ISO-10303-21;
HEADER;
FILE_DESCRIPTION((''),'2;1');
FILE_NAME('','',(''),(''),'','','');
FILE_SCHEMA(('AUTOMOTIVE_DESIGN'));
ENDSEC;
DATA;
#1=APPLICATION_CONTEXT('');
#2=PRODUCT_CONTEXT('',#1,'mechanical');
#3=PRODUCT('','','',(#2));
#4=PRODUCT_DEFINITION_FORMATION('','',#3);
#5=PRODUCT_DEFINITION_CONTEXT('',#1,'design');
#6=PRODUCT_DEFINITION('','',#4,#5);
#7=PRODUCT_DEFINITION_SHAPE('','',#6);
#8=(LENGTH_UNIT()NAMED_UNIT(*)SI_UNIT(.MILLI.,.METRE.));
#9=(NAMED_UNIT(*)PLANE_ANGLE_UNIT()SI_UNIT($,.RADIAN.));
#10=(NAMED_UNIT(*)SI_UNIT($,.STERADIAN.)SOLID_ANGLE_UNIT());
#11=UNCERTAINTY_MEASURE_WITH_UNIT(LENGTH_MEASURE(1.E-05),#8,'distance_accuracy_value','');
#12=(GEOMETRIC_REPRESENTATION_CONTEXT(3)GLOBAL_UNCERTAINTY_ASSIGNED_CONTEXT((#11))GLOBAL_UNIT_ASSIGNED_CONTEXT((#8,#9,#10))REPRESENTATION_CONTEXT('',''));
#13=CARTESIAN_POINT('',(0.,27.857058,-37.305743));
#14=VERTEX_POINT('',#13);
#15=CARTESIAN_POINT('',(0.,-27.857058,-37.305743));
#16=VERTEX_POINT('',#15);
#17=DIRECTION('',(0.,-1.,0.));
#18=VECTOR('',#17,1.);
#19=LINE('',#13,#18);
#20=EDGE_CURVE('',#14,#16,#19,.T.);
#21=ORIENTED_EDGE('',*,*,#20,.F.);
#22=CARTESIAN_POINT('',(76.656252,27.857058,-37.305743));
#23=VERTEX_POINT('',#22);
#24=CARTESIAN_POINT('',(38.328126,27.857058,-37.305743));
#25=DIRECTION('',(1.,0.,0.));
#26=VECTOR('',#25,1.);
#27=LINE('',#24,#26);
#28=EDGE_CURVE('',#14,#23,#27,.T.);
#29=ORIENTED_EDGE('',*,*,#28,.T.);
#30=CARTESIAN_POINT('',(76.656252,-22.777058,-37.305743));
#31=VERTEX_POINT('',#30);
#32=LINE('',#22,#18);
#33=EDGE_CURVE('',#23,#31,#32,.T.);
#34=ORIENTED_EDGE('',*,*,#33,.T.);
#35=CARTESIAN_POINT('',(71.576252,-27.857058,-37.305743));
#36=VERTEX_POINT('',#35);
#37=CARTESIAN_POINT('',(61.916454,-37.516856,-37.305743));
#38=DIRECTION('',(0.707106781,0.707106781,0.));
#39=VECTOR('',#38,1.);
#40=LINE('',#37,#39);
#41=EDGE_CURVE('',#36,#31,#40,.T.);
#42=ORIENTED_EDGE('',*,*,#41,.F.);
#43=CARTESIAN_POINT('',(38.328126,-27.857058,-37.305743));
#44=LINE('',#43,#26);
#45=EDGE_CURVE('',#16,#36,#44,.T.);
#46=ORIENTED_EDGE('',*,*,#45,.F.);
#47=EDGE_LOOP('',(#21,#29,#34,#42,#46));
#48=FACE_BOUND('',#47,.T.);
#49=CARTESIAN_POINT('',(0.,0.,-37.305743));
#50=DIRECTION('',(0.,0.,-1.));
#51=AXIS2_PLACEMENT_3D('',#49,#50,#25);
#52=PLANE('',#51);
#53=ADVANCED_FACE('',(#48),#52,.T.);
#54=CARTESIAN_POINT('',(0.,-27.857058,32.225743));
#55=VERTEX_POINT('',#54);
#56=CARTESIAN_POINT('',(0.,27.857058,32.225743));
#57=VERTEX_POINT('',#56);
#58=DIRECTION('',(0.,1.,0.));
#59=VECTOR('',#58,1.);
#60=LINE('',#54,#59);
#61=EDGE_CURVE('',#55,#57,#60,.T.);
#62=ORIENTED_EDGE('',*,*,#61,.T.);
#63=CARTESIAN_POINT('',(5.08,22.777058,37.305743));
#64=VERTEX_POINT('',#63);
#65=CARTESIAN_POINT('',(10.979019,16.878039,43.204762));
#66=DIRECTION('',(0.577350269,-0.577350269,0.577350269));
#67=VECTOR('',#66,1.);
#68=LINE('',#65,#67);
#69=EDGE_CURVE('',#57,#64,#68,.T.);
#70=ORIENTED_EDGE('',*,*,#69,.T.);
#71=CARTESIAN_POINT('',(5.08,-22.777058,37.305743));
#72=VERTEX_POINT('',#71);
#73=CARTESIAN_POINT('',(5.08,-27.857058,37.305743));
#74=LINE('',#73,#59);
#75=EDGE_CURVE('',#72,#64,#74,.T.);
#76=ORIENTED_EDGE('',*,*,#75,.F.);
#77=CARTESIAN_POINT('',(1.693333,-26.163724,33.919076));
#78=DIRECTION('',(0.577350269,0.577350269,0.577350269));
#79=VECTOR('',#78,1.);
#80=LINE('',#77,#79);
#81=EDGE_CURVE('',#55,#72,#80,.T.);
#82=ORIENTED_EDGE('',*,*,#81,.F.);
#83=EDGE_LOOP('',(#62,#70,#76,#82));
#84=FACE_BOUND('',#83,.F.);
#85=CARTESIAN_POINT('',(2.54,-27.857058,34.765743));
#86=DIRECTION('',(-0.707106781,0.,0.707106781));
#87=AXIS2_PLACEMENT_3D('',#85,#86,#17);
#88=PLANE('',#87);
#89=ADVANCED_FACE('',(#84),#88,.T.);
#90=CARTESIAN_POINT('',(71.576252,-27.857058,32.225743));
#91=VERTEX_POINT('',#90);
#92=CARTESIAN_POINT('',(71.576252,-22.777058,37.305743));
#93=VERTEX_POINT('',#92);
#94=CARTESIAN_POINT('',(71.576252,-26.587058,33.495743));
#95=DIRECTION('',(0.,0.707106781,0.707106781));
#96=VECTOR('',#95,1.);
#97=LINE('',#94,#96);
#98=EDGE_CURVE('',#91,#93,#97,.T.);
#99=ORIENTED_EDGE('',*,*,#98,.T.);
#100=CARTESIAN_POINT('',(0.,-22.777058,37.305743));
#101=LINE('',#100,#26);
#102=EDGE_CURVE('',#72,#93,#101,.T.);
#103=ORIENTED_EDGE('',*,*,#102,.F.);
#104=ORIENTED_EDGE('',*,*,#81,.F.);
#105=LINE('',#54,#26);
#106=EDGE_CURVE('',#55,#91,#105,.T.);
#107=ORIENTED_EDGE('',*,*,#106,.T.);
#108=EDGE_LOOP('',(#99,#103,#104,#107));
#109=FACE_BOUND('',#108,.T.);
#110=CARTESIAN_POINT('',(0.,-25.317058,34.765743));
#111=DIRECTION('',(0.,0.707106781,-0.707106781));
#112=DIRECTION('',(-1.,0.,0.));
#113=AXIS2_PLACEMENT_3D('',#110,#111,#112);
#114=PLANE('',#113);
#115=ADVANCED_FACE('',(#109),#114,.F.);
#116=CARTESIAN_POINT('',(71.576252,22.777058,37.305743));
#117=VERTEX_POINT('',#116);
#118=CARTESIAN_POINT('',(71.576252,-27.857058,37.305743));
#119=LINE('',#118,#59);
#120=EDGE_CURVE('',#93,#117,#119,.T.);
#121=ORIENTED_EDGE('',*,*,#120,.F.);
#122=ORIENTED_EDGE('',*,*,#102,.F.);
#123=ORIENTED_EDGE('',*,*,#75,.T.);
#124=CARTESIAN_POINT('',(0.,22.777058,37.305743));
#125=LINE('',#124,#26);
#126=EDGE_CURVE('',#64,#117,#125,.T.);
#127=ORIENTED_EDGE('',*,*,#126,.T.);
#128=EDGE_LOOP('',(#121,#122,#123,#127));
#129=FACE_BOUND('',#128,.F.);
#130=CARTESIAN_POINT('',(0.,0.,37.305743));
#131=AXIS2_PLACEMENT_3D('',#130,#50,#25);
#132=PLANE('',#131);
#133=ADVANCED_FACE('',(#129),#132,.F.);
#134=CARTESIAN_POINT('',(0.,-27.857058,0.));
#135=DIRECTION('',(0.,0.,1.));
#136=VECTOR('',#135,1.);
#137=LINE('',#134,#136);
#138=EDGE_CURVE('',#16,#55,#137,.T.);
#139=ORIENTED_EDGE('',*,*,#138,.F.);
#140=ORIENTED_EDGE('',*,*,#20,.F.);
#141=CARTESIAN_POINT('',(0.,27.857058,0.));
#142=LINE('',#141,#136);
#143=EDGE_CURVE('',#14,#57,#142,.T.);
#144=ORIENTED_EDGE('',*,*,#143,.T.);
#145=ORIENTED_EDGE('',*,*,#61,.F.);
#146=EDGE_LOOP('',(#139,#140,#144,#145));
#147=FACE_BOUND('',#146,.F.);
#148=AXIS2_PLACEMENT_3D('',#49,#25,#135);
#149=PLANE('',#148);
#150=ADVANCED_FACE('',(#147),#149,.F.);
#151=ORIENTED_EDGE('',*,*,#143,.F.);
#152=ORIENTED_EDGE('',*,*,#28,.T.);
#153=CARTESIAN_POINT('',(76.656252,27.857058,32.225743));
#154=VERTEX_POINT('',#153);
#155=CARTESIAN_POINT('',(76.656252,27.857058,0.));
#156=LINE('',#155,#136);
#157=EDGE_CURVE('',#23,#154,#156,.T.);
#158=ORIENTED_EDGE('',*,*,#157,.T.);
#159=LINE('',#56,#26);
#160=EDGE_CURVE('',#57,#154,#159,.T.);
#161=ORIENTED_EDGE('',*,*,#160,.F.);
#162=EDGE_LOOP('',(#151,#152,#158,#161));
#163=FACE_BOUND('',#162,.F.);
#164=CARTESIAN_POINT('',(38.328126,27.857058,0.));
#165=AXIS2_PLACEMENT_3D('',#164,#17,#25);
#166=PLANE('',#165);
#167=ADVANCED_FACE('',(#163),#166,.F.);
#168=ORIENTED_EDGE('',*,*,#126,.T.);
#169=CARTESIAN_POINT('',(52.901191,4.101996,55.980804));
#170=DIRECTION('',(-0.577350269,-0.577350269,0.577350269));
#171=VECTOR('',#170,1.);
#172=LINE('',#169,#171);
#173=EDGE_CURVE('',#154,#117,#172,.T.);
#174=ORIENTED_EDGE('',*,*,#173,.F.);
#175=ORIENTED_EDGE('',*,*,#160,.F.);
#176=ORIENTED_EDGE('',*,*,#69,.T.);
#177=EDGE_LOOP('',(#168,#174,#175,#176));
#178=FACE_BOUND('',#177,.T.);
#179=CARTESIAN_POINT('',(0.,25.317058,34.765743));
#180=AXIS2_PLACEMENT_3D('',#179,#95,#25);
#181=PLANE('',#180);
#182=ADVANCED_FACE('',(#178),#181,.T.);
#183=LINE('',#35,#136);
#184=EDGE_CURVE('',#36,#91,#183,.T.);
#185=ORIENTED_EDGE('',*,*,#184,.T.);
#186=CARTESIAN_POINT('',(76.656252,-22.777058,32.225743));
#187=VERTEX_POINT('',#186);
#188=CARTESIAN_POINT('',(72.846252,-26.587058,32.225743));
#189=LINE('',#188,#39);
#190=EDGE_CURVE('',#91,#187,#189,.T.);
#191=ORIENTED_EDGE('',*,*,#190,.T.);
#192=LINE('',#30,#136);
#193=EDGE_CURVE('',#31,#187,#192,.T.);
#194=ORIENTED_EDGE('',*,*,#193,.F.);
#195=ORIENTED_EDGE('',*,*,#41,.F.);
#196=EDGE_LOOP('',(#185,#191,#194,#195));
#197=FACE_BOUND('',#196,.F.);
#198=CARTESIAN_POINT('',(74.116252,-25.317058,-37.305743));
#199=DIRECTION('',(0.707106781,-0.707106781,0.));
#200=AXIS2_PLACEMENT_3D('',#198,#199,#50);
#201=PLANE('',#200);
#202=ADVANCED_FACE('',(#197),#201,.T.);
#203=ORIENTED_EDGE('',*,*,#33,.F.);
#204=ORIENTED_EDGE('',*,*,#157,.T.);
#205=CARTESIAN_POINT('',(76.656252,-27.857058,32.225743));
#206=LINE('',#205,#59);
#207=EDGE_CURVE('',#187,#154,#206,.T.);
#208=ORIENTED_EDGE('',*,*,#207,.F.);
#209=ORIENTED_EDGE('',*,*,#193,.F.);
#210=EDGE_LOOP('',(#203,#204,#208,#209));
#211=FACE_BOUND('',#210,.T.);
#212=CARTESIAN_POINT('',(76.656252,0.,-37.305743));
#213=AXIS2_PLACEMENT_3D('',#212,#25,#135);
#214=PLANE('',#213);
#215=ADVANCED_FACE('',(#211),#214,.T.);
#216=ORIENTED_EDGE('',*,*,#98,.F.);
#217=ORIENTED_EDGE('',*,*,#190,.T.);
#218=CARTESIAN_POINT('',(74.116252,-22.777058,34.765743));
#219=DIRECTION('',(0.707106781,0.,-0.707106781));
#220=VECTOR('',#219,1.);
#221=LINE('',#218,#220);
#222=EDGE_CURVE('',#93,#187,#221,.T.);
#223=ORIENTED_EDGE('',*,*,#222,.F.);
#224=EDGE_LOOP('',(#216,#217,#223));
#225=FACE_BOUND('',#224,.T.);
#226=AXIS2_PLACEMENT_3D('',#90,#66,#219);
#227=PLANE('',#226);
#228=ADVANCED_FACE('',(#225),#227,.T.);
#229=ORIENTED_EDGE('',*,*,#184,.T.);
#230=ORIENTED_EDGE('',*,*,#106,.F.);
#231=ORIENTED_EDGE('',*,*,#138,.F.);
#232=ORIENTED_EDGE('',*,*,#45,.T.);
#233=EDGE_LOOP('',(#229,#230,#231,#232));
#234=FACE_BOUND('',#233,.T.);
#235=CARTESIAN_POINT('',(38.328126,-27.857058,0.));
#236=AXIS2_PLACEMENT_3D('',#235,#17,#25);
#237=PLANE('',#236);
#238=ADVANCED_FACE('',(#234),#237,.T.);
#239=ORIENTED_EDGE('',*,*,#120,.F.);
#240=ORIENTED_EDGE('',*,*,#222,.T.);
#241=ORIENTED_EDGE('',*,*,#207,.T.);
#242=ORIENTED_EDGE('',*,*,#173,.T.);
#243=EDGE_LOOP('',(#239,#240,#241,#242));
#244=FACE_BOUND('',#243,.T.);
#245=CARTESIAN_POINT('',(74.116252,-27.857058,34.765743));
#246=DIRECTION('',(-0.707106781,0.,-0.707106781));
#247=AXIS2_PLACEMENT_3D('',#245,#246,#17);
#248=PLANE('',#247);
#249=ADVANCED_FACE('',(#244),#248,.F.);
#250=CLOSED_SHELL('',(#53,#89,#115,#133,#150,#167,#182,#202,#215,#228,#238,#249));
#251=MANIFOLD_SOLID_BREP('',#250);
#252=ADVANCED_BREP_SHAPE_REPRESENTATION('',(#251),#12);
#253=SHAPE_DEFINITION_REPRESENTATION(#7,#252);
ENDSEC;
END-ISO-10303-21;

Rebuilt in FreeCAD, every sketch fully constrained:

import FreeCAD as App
import Part
import Sketcher

V = App.Vector
Q = App.Units.Quantity


def edges_at(feature, points):
    """Names of the edges that pass closest to the given points."""
    edges = feature.Shape.Edges
    near = lambda p: min(range(len(edges)), key=lambda i: edges[i].distToShape(Part.Vertex(*p))[0])
    return sorted({f"Edge{near(p) + 1}" for p in points})

doc = App.newDocument("Part")
body = doc.addObject("PartDesign::Body", "Body")

# Sketch on XZ plane
sketch1 = body.newObject("Sketcher::SketchObject", "Sketch")
sketch1.AttachmentSupport = (doc.getObject("XZ_Plane"), [""])
sketch1.MapMode = "FlatFace"
sketch1.addGeometry([
    Part.LineSegment(V(0, 37, 0), V(0, -37, 0)),
    Part.LineSegment(V(0, -37, 0), V(77, -37, 0)),
    Part.LineSegment(V(77, -37, 0), V(77, 37, 0)),
    Part.LineSegment(V(77, 37, 0), V(0, 37, 0)),
], False)
sketch1.addConstraint([
    Sketcher.Constraint("Coincident", 0, 2, 1, 1),
    Sketcher.Constraint("Coincident", 1, 2, 2, 1),
    Sketcher.Constraint("Coincident", 2, 2, 3, 1),
    Sketcher.Constraint("Coincident", 3, 2, 0, 1),
    Sketcher.Constraint("Vertical", 0),
    Sketcher.Constraint("Horizontal", 1),
    Sketcher.Constraint("Vertical", 2),
    Sketcher.Constraint("Horizontal", 3),
    Sketcher.Constraint("Symmetric", 0, 2, 3, 2, -1, 1),
    Sketcher.Constraint("DistanceX", 1, 1, 1, 2, 76.656252),
    Sketcher.Constraint("DistanceY", 0, 2, 0, 1, 74.611485),
])
pad1 = body.newObject("PartDesign::Pad", "Pad")
pad1.Profile = sketch1
pad1.Length = 55.714116
pad1.Midplane = True
doc.recompute()

chamfer = body.newObject("PartDesign::Chamfer", "Chamfer")
chamfer.Base = (pad1, edges_at(pad1, [
    (76.656, 0, 37.306),
    (38.328, -27.857, 37.306),
    (0, 0, 37.306),
    (76.656, -27.857, 0),
    (38.328, 27.857, 37.306),
]))
chamfer.Size = Q("0.2 in")

doc.recompute()
